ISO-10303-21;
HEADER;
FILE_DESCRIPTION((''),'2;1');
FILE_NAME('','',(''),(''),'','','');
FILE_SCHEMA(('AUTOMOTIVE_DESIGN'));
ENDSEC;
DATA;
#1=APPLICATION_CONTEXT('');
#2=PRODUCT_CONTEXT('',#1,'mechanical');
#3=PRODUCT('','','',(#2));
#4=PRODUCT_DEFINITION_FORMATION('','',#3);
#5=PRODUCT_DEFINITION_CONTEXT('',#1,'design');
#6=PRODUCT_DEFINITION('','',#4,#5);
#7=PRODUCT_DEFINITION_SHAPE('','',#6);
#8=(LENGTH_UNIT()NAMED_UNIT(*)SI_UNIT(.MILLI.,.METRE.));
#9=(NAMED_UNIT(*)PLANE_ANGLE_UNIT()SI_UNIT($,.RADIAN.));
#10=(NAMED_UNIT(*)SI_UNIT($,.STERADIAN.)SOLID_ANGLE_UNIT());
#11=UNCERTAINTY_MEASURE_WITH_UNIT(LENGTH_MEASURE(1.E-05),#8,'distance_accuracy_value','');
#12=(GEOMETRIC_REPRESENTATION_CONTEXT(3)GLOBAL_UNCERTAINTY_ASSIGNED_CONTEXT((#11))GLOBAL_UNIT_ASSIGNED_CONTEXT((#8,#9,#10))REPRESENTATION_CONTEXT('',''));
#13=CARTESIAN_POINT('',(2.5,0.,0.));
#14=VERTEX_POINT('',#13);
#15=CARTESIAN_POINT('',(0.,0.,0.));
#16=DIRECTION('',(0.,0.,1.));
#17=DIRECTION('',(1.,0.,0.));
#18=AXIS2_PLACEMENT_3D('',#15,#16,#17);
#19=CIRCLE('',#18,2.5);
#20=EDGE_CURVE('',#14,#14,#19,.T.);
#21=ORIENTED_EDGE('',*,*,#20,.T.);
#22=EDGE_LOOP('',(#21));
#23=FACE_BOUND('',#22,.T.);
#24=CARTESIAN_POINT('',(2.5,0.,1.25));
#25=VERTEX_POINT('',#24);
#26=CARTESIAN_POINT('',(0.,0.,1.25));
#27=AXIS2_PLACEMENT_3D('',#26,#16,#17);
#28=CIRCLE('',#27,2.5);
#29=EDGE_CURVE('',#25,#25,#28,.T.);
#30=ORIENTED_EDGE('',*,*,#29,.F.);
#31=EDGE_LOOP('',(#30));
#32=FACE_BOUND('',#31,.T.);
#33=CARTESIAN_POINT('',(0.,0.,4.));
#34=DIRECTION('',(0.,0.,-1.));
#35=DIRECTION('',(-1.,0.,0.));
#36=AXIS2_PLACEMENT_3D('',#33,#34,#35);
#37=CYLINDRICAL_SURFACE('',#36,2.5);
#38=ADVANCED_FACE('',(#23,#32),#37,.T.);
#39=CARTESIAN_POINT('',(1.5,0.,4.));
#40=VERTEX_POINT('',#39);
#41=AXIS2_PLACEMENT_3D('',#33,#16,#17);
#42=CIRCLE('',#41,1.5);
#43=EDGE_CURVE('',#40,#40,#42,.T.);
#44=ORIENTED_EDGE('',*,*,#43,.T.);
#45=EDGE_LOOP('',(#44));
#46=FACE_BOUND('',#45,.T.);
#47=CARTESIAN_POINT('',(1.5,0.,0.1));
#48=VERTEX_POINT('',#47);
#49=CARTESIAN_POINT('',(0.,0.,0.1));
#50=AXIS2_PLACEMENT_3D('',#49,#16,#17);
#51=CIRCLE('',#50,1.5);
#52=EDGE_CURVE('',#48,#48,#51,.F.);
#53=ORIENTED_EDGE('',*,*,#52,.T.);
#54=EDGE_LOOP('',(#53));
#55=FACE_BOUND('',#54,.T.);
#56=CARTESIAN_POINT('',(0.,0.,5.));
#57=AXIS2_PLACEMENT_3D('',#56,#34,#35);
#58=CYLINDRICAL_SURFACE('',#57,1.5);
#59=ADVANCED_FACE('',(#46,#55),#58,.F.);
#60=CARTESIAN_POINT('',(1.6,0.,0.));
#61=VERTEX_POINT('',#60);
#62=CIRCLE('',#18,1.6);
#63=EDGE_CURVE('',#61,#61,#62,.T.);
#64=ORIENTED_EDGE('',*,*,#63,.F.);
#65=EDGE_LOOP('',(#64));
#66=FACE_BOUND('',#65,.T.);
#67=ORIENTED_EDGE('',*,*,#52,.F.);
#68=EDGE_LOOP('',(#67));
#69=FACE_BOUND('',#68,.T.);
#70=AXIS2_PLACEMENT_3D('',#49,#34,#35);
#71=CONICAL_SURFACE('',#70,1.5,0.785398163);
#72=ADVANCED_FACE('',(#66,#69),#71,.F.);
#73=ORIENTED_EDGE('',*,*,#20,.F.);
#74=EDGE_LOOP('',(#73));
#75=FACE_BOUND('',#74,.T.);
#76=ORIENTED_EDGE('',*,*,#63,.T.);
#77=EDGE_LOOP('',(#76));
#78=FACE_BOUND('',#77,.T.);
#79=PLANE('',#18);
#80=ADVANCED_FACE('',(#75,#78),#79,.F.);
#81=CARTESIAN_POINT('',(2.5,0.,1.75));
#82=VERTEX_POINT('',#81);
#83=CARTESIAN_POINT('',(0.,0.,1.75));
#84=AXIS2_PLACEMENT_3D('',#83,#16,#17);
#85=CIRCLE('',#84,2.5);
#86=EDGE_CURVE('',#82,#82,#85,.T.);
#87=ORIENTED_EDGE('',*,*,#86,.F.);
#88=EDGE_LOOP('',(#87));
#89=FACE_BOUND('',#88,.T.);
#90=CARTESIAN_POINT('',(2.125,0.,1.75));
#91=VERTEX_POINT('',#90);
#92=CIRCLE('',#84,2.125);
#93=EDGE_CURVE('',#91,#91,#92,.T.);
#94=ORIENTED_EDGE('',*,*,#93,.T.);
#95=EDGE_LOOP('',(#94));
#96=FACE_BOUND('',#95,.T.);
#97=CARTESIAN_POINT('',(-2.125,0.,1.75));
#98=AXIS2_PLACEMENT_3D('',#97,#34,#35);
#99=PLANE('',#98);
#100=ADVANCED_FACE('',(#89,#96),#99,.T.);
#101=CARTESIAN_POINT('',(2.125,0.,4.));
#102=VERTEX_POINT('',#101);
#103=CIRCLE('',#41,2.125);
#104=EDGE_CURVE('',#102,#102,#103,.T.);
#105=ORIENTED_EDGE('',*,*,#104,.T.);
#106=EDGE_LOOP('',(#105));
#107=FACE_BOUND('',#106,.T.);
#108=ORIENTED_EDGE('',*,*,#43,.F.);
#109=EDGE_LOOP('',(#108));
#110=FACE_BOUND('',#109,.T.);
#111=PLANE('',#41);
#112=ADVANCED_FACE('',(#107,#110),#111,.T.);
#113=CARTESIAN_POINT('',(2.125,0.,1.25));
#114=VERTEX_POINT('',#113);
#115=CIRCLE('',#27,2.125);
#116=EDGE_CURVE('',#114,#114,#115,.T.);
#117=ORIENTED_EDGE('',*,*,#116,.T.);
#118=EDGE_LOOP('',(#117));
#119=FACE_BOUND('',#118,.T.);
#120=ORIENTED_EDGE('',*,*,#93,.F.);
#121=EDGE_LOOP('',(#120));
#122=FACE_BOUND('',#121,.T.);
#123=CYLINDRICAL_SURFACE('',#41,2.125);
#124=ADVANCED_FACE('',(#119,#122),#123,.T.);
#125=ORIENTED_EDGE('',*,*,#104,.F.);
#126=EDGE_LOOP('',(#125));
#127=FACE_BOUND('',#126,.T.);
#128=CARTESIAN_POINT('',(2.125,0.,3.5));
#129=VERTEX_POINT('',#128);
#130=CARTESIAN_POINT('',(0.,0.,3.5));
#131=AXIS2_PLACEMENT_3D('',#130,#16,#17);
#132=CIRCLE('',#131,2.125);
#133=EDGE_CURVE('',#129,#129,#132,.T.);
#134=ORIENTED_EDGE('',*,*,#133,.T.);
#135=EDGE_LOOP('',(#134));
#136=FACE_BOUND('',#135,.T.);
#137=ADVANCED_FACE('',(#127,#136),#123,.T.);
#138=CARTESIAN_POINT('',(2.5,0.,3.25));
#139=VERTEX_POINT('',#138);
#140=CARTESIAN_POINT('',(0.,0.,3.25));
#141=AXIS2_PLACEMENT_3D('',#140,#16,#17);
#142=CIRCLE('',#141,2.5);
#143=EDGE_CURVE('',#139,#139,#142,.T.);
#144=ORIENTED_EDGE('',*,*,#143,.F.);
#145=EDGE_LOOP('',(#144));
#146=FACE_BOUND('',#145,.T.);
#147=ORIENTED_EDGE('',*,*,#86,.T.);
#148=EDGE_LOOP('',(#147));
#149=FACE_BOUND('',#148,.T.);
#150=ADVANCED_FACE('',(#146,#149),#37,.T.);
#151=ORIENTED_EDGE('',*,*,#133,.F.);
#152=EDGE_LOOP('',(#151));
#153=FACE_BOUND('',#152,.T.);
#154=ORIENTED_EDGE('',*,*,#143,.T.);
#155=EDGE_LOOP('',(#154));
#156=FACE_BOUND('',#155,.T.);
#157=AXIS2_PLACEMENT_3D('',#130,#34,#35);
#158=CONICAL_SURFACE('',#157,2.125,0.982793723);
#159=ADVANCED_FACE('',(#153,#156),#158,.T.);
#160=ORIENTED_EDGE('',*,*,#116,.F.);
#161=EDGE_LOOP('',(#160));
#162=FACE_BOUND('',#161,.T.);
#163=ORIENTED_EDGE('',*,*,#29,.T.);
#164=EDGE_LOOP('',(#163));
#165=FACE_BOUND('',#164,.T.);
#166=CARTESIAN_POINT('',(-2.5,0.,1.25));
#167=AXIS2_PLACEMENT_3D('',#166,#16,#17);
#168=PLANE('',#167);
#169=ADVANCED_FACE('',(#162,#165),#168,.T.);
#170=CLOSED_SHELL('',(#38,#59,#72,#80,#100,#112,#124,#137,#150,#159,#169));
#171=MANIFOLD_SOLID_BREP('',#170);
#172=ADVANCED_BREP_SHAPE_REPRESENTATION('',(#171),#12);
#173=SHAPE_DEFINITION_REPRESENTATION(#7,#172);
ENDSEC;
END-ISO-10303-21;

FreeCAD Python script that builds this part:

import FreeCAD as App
import Part
import Sketcher
from FreeCAD import Vector


def edges_at(feature, points):
    """Names of the edges that pass closest to the given points."""
    edges = feature.Shape.Edges
    near = lambda p: min(range(len(edges)), key=lambda i: edges[i].distToShape(Part.Vertex(*p))[0])
    return sorted({f"Edge{near(p) + 1}" for p in points})


def add_polygon(sketch, points):
    """Adds a closed chain of lines whose ends are joined by coincident constraints."""
    first, n = sketch.GeometryCount, len(points)
    for a, b in zip(points, points[1:] + points[:1]):
        sketch.addGeometry(Part.LineSegment(App.Vector(*a, 0), App.Vector(*b, 0)), False)
    for i in range(n):
        sketch.addConstraint(Sketcher.Constraint("Coincident", first + i, 2, first + (i + 1) % n, 1))

doc = App.newDocument("Part")
body = doc.addObject("PartDesign::Body", "Body")

# Sketch on XY plane
sketch1 = body.newObject("Sketcher::SketchObject", "Sketch")
sketch1.AttachmentSupport = (doc.getObject("XY_Plane"), [""])
sketch1.MapMode = "FlatFace"
sketch1.addGeometry(Part.Circle(Vector(0, 0, 0), Vector(0, 0, 1), 2.5), False)
sketch1.addConstraint(Sketcher.Constraint("Coincident", 0, 3, -1, 1))
sketch1.addConstraint(Sketcher.Constraint("Diameter", 0, 5.0))
pad1 = body.newObject("PartDesign::Pad", "Pad")
pad1.Profile = sketch1
pad1.Length = 4

# Sketch on XZ plane
sketch2 = body.newObject("Sketcher::SketchObject", "Sketch001")
sketch2.AttachmentSupport = (doc.getObject("XZ_Plane"), [""])
sketch2.MapMode = "FlatFace"
add_polygon(sketch2, [(-3, 4), (-2.125, 4), (-2.125, 3.5), (-2.5, 3.25), (-2.5, 1.75), (-2.125, 1.75), (-2.125, 1.25), (-2.5, 1.25), (-2.5, 0), (-3, 0)])  # lines 0-9
sketch2.addConstraint(Sketcher.Constraint("Horizontal", 0))
sketch2.addConstraint(Sketcher.Constraint("Vertical", 1))
sketch2.addConstraint(Sketcher.Constraint("Vertical", 3))
sketch2.addConstraint(Sketcher.Constraint("Horizontal", 4))
sketch2.addConstraint(Sketcher.Constraint("Vertical", 5))
sketch2.addConstraint(Sketcher.Constraint("Horizontal", 6))
sketch2.addConstraint(Sketcher.Constraint("Vertical", 7))
sketch2.addConstraint(Sketcher.Constraint("Horizontal", 8))
sketch2.addConstraint(Sketcher.Constraint("Vertical", 9))
sketch2.addConstraint(Sketcher.Constraint("PointOnObject", 7, 2, -1))
sketch2.addConstraint(Sketcher.Constraint("Vertical", 1, 2, 4, 2))
sketch2.addConstraint(Sketcher.Constraint("Vertical", 3, 2, 6, 2))
sketch2.addConstraint(Sketcher.Constraint("Equal", 8, 1))
sketch2.addConstraint(Sketcher.Constraint("Equal", 1, 5))
sketch2.addConstraint(Sketcher.Constraint("DistanceY", 9, 1, 9, 2, 4.0))
sketch2.addConstraint(Sketcher.Constraint("DistanceX", 8, 2, 8, 1, 0.5))
sketch2.addConstraint(Sketcher.Constraint("DistanceY", 3, 2, 3, 1, 1.5))
sketch2.addConstraint(Sketcher.Constraint("DistanceX", 8, 2, -1, 1, 3.0))
sketch2.addConstraint(Sketcher.Constraint("DistanceY", 7, 2, 7, 1, 1.25))
sketch2.addConstraint(Sketcher.Constraint("DistanceX", 0, 1, 0, 2, 0.875))
groove = body.newObject("PartDesign::Groove", "Groove")
groove.Profile = sketch2
groove.ReferenceAxis = (sketch2, ["V_Axis"])
groove.Angle = 360

# Sketch on XY plane
sketch3 = body.newObject("Sketcher::SketchObject", "Sketch002")
sketch3.AttachmentSupport = (doc.getObject("XY_Plane"), [""])
sketch3.MapMode = "FlatFace"
sketch3.addGeometry(Part.Circle(Vector(0, 0, 0), Vector(0, 0, 1), 1.5), False)
sketch3.addConstraint(Sketcher.Constraint("Coincident", 0, 3, -1, 1))
sketch3.addConstraint(Sketcher.Constraint("Diameter", 0, 3.0))
pocket1 = body.newObject("PartDesign::Pocket", "Pocket")
pocket1.Profile = sketch3
pocket1.Length = 5
pocket1.Reversed = True
doc.recompute()

chamfer = body.newObject("PartDesign::Chamfer", "Chamfer")
chamfer.Base = (pocket1, edges_at(pocket1, [(1.5, 0, 0)]))
chamfer.Size = 0.1

doc.recompute()
